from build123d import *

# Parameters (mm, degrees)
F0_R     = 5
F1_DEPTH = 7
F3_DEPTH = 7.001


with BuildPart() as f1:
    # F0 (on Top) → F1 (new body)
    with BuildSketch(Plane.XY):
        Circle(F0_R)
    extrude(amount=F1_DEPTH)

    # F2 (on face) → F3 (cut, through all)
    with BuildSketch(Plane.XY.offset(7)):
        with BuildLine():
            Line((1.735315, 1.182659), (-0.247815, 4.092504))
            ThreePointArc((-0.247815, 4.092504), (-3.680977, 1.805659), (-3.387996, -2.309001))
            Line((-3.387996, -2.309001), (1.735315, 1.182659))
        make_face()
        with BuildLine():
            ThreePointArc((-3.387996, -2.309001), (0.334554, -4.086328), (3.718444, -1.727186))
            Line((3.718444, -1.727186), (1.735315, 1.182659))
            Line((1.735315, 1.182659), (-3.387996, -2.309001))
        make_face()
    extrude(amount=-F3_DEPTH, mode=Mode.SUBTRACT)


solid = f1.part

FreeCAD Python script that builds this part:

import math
import FreeCAD as App
import Part
import Sketcher

V = App.Vector
Q = App.Units.Quantity

doc = App.newDocument("Part")
body = doc.addObject("PartDesign::Body", "Body")

# Sketch on XY plane
sketch1 = doc.addObject("Sketcher::SketchObject", "Sketch")
body.addObject(sketch1)
sketch1.AttachmentSupport = (doc.XY_Plane, [""])
sketch1.MapMode = "FlatFace"
sketch1.addGeometry(Part.Circle(V(0, 0, 0), V(0, 0, 1), 5), False)
sketch1.addConstraint([
    Sketcher.Constraint("Coincident", 0, 3, -1, 1),
    Sketcher.Constraint("Diameter", 0, Q("10 mm")),
])
pad1 = doc.addObject("PartDesign::Pad", "Pad")
body.addObject(pad1)
pad1.Profile = sketch1
pad1.Length = 7

# Sketch on XY plane
sketch2 = doc.addObject("Sketcher::SketchObject", "Sketch001")
body.addObject(sketch2)
sketch2.AttachmentSupport = (doc.XY_Plane, [""])
sketch2.MapMode = "FlatFace"
sketch2.AttachmentOffset = App.Placement(V(0, 0, 7), App.Rotation())
sketch2.addGeometry([
    Part.LineSegment(V(1.735315, 1.182659, 0), V(-0.247815, 4.092504, 0)),
    Part.ArcOfCircle(Part.Circle(V(0.000001, -0.000001, 0), V(0, 0, 1), 4.100001), math.radians(93.465239), math.radians(214.275356)),
    Part.ArcOfCircle(Part.Circle(V(0, -0.000001, 0), V(0, 0, 1), 4.1), math.radians(-145.724632), math.radians(-24.914461)),
    Part.LineSegment(V(3.718444, -1.727186, 0), V(1.735315, 1.182659, 0)),
], False)
sketch2.addConstraint([
    Sketcher.Constraint("Coincident", 0, 2, 1, 1),
    Sketcher.Constraint("Tangent", 1, 2, 2, 1),
    Sketcher.Constraint("Coincident", 2, 2, 3, 1),
    Sketcher.Constraint("Coincident", 3, 2, 0, 1),
    Sketcher.Constraint("Coincident", 1, 3, -1, 1),
    Sketcher.Constraint("Equal", 1, 2),
    Sketcher.Constraint("Parallel", 0, 3),
    Sketcher.Constraint("Equal", 0, 3),
    Sketcher.Constraint("Radius", 1, Q("4.100001 mm")),
    Sketcher.Constraint("DistanceY", 1, 2, -1, 1, Q("2.309001 mm")),
    Sketcher.Constraint("DistanceY", -1, 1, 3, 2, Q("1.182659 mm")),
    Sketcher.Constraint("DistanceX", 1, 2, 0, 2, Q("3.140181 mm")),
])
pocket1 = doc.addObject("PartDesign::Pocket", "Pocket")
body.addObject(pocket1)
pocket1.Profile = sketch2
pocket1.Type = "ThroughAll"

doc.recompute()
